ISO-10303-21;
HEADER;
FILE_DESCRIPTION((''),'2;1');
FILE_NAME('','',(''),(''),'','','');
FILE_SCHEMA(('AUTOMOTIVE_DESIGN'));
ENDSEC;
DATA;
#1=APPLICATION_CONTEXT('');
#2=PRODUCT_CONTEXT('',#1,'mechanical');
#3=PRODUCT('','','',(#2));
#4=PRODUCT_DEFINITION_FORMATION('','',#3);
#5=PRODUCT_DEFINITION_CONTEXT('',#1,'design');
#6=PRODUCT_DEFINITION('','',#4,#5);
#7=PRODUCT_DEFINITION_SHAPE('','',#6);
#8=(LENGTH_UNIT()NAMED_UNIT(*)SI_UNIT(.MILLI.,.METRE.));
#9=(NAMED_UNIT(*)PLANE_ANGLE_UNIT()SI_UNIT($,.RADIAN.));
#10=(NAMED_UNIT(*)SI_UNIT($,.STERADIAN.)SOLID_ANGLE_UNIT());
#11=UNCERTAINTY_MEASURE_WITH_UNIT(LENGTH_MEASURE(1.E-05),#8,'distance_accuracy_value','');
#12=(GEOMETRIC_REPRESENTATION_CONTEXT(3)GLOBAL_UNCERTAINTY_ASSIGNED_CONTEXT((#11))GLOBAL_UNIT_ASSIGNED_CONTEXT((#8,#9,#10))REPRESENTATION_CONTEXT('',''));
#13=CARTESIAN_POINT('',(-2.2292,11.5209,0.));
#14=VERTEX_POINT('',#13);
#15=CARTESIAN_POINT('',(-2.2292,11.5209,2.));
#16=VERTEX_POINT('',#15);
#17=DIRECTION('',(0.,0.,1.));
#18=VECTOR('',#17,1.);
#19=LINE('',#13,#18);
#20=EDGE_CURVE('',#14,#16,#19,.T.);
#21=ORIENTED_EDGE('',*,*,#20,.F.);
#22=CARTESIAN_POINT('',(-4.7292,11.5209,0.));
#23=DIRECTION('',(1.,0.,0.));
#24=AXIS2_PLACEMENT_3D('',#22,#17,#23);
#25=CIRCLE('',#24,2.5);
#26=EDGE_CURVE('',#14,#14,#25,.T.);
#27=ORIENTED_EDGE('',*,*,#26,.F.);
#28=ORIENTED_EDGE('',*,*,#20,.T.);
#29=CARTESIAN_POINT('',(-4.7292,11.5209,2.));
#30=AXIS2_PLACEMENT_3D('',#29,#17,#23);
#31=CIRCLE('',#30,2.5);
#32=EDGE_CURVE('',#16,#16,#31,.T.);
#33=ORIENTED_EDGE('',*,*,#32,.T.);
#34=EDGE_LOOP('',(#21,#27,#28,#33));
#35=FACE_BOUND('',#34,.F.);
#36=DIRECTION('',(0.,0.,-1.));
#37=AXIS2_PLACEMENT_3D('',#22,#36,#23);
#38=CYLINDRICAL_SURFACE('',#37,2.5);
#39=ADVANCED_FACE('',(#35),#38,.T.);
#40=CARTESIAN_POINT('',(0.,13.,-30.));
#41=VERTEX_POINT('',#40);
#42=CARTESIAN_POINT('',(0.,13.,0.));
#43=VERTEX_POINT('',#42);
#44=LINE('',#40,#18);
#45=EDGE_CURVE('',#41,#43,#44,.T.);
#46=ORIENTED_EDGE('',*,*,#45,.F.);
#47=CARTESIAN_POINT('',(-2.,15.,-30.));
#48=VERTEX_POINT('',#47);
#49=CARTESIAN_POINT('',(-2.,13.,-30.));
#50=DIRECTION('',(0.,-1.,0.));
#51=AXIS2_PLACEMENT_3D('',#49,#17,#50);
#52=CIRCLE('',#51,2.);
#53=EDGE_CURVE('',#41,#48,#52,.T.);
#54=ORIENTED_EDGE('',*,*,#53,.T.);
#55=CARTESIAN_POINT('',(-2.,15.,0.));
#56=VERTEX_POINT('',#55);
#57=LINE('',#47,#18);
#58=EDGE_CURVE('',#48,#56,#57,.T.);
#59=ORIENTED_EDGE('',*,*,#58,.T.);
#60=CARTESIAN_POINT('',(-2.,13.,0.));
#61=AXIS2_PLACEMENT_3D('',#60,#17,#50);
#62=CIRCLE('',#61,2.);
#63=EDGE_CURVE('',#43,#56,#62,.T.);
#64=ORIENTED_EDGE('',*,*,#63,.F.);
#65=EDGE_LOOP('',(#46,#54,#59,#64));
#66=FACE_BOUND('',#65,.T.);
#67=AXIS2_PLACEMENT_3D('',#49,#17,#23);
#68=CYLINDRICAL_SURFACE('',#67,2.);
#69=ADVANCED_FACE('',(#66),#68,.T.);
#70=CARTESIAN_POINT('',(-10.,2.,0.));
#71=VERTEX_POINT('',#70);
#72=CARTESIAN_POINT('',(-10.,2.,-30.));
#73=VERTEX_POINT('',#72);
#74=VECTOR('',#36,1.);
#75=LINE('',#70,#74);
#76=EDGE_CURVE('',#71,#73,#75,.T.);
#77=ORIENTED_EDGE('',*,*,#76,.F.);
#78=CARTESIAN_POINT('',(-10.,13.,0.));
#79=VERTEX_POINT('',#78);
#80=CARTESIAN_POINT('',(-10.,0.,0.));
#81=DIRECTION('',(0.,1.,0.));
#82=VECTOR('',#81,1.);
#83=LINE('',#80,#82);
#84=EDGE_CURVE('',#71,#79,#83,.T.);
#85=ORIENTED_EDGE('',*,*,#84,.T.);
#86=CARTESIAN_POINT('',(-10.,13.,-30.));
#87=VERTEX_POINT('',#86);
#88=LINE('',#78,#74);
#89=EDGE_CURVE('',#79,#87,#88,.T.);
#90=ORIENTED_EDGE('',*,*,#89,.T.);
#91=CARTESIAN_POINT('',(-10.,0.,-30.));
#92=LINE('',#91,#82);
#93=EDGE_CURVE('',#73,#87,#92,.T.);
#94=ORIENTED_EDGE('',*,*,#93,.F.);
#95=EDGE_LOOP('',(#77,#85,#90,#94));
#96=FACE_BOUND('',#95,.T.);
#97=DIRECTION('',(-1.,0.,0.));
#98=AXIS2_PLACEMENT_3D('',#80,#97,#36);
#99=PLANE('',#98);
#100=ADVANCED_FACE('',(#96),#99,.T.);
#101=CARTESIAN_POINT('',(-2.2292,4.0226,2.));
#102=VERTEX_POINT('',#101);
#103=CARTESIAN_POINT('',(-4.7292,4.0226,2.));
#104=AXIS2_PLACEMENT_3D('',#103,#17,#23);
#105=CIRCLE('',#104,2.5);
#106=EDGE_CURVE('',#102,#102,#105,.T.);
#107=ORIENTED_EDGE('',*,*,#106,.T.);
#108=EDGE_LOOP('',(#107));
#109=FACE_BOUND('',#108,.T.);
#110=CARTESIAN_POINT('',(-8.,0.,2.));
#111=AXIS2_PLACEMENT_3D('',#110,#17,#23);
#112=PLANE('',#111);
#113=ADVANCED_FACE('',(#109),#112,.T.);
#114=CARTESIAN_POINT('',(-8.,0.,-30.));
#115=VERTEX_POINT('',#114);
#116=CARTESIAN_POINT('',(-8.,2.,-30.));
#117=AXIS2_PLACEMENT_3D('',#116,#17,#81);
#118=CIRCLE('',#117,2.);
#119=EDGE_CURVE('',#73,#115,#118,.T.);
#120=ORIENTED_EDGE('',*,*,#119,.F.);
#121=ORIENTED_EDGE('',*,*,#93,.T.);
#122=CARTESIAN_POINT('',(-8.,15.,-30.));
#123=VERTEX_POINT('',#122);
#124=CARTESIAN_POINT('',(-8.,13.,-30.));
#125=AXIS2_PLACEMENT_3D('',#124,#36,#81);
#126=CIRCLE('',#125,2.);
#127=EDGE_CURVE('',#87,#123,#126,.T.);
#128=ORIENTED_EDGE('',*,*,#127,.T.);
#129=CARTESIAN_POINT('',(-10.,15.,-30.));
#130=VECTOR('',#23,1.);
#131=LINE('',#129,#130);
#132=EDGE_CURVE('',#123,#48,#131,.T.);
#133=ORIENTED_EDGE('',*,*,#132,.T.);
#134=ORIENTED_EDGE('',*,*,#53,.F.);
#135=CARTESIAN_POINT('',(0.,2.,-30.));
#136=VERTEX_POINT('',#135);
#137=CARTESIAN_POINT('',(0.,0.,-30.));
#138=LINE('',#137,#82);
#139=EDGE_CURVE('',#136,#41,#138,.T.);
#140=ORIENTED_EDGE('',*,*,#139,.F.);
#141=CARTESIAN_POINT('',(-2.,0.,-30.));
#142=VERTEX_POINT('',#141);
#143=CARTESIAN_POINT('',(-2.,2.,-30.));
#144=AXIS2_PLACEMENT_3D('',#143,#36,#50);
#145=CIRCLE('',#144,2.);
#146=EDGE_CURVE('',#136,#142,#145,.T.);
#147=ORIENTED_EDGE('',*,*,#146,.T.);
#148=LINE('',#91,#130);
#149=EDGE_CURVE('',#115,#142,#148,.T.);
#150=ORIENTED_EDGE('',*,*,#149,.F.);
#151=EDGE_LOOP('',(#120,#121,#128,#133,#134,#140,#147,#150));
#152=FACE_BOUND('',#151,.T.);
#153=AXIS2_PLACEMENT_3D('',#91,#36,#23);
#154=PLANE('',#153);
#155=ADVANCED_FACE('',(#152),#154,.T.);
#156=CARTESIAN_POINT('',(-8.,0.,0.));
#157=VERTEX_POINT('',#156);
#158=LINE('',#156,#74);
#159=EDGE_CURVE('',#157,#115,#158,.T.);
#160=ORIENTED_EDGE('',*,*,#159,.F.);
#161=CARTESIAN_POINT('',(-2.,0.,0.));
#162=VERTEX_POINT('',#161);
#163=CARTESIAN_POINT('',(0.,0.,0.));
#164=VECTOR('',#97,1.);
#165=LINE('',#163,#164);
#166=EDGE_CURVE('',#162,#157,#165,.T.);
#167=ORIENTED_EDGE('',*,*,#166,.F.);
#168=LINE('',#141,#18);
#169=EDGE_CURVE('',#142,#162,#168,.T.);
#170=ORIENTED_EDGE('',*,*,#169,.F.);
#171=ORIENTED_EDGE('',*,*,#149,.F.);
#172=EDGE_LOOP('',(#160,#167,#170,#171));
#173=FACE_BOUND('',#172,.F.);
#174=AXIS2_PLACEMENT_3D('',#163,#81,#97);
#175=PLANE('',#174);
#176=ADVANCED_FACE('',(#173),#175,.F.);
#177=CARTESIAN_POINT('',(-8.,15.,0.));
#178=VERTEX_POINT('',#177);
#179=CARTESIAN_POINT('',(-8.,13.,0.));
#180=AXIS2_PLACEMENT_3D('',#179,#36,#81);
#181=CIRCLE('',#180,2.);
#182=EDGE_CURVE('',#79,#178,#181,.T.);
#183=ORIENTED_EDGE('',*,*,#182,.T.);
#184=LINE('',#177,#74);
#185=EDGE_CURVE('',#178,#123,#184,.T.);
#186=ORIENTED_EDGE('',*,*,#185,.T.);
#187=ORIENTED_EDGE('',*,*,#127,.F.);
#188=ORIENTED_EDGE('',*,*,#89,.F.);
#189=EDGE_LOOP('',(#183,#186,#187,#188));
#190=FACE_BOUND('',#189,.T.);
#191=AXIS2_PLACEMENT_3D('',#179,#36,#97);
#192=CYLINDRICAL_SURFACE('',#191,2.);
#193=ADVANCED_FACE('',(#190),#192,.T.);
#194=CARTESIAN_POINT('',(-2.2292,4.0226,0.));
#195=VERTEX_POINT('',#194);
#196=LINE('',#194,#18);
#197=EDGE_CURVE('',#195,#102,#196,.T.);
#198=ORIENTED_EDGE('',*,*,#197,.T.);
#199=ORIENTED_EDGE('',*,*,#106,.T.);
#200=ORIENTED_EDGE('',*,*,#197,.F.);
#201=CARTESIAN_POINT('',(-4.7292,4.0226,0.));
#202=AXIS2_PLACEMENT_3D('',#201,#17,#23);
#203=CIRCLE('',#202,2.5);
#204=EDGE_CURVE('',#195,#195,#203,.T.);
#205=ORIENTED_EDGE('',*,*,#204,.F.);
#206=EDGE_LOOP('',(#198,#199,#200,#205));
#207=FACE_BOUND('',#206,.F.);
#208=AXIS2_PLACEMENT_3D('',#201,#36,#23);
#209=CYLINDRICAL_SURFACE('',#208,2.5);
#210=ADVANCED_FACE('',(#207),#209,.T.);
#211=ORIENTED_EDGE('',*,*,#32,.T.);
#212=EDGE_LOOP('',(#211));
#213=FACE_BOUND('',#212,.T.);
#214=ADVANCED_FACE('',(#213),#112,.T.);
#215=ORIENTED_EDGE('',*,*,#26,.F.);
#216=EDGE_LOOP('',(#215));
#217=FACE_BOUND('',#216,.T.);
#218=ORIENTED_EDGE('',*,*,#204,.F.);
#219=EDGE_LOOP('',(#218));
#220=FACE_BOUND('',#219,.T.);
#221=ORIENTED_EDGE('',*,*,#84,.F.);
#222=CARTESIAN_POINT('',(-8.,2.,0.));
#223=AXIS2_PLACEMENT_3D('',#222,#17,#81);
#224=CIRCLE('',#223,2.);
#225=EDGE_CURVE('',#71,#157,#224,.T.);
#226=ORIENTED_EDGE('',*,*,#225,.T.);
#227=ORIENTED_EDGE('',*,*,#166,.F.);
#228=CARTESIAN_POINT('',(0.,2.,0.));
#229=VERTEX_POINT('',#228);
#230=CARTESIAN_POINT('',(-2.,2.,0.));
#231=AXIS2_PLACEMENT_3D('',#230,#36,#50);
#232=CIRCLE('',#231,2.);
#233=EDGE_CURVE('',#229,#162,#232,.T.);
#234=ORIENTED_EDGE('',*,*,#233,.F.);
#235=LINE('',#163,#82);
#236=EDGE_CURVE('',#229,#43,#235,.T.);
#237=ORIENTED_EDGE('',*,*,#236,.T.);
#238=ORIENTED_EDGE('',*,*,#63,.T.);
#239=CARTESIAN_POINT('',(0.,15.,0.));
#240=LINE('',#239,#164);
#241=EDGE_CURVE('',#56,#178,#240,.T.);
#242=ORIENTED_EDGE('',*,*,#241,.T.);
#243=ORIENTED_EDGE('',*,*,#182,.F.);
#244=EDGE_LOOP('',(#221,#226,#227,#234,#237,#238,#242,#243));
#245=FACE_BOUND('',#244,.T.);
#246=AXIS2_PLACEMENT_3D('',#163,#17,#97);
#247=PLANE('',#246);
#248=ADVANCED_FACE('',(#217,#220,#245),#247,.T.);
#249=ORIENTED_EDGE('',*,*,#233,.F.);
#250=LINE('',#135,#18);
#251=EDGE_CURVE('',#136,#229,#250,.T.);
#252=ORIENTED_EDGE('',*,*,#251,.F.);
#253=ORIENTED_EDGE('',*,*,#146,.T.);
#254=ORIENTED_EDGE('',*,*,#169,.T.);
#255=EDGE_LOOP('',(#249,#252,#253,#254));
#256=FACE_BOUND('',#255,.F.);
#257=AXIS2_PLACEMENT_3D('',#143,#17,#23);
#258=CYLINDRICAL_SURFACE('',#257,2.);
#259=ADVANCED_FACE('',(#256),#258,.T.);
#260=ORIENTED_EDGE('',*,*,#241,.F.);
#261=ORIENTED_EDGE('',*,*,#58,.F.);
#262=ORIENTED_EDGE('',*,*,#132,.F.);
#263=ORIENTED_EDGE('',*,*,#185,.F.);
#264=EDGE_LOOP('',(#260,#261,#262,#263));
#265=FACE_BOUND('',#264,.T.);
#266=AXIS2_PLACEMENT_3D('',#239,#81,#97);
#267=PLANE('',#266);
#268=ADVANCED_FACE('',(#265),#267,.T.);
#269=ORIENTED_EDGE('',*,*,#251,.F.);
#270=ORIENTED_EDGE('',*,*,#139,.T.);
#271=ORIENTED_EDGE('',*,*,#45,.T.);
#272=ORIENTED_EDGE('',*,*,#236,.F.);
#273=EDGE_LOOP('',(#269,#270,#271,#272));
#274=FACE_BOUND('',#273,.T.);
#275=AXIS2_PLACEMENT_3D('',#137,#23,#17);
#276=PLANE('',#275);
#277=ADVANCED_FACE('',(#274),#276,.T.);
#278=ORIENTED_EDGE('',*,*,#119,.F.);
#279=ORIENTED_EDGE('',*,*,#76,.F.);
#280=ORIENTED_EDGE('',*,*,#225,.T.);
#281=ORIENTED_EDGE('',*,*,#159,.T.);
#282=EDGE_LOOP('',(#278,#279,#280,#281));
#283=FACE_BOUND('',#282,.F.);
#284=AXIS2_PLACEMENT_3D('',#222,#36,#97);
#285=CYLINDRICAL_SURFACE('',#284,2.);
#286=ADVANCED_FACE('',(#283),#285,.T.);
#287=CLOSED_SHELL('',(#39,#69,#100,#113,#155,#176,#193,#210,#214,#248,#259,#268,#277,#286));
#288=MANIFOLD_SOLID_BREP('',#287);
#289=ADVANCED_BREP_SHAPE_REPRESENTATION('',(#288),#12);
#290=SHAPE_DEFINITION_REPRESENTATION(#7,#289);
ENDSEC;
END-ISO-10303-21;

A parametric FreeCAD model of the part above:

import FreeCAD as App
import Part
import Sketcher

V = App.Vector
Q = App.Units.Quantity


def edges_at(feature, points):
    """Names of the edges that pass closest to the given points."""
    edges = feature.Shape.Edges
    near = lambda p: min(range(len(edges)), key=lambda i: edges[i].distToShape(Part.Vertex(*p))[0])
    return sorted({f"Edge{near(p) + 1}" for p in points})

doc = App.newDocument("Part")
body = doc.addObject("PartDesign::Body", "Body")

# Sketch on XZ plane
sketch1 = body.newObject("Sketcher::SketchObject", "Sketch")
sketch1.AttachmentSupport = (doc.getObject("XZ_Plane"), [""])
sketch1.MapMode = "FlatFace"
sketch1.addGeometry(Part.LineSegment(V(-10, 0, 0), V(0, 0, 0)), False)
sketch1.addGeometry(Part.LineSegment(V(0, 0, 0), V(0, -30, 0)), False)
sketch1.addGeometry(Part.LineSegment(V(0, -30, 0), V(-10, -30, 0)), False)
sketch1.addGeometry(Part.LineSegment(V(-10, -30, 0), V(-10, 0, 0)), False)
sketch1.addConstraint(Sketcher.Constraint("Coincident", 0, 2, 1, 1))
sketch1.addConstraint(Sketcher.Constraint("Coincident", 1, 2, 2, 1))
sketch1.addConstraint(Sketcher.Constraint("Coincident", 2, 2, 3, 1))
sketch1.addConstraint(Sketcher.Constraint("Coincident", 3, 2, 0, 1))
sketch1.addConstraint(Sketcher.Constraint("Horizontal", 0))
sketch1.addConstraint(Sketcher.Constraint("Vertical", 1))
sketch1.addConstraint(Sketcher.Constraint("Horizontal", 2))
sketch1.addConstraint(Sketcher.Constraint("Vertical", 3))
sketch1.addConstraint(Sketcher.Constraint("Coincident", 0, 2, -1, 1))
sketch1.addConstraint(Sketcher.Constraint("DistanceX", 0, 1, 0, 2, Q("10 mm")))
sketch1.addConstraint(Sketcher.Constraint("DistanceY", 1, 2, 1, 1, Q("30 mm")))
pad1 = body.newObject("PartDesign::Pad", "Pad")
pad1.Profile = sketch1
pad1.Length = 15
pad1.Reversed = True
doc.recompute()

fillet = body.newObject("PartDesign::Fillet", "Fillet")
fillet.Base = (pad1, edges_at(pad1, [
    (0, 15, -15),
    (-10, 15, -15),
    (0, 0, -15),
    (-10, 0, -15),
]))
fillet.Radius = 2

# Sketch on XY plane
sketch2 = body.newObject("Sketcher::SketchObject", "Sketch001")
sketch2.AttachmentSupport = (doc.getObject("XY_Plane"), [""])
sketch2.MapMode = "FlatFace"
sketch2.addGeometry(Part.Circle(V(-4.7, 11.5, 0), V(0, 0, 1), 2.5), False)
sketch2.addGeometry(Part.Circle(V(-4.7, 4, 0), V(0, 0, 1), 2.5), False)
sketch2.addConstraint(Sketcher.Constraint("Equal", 0, 1))
sketch2.addConstraint(Sketcher.Constraint("Vertical", 0, 3, 1, 3))
sketch2.addConstraint(Sketcher.Constraint("Diameter", 0, Q("5 mm")))
sketch2.addConstraint(Sketcher.Constraint("DistanceY", -1, 1, 0, 3, Q("11.521 mm")))
sketch2.addConstraint(Sketcher.Constraint("DistanceX", 0, 3, -1, 1, Q("4.7292 mm")))
sketch2.addConstraint(Sketcher.Constraint("DistanceY", -1, 1, 1, 3, Q("4.0226 mm")))
pad2 = body.newObject("PartDesign::Pad", "Pad001")
pad2.Profile = sketch2
pad2.Length = 2

doc.recompute()
